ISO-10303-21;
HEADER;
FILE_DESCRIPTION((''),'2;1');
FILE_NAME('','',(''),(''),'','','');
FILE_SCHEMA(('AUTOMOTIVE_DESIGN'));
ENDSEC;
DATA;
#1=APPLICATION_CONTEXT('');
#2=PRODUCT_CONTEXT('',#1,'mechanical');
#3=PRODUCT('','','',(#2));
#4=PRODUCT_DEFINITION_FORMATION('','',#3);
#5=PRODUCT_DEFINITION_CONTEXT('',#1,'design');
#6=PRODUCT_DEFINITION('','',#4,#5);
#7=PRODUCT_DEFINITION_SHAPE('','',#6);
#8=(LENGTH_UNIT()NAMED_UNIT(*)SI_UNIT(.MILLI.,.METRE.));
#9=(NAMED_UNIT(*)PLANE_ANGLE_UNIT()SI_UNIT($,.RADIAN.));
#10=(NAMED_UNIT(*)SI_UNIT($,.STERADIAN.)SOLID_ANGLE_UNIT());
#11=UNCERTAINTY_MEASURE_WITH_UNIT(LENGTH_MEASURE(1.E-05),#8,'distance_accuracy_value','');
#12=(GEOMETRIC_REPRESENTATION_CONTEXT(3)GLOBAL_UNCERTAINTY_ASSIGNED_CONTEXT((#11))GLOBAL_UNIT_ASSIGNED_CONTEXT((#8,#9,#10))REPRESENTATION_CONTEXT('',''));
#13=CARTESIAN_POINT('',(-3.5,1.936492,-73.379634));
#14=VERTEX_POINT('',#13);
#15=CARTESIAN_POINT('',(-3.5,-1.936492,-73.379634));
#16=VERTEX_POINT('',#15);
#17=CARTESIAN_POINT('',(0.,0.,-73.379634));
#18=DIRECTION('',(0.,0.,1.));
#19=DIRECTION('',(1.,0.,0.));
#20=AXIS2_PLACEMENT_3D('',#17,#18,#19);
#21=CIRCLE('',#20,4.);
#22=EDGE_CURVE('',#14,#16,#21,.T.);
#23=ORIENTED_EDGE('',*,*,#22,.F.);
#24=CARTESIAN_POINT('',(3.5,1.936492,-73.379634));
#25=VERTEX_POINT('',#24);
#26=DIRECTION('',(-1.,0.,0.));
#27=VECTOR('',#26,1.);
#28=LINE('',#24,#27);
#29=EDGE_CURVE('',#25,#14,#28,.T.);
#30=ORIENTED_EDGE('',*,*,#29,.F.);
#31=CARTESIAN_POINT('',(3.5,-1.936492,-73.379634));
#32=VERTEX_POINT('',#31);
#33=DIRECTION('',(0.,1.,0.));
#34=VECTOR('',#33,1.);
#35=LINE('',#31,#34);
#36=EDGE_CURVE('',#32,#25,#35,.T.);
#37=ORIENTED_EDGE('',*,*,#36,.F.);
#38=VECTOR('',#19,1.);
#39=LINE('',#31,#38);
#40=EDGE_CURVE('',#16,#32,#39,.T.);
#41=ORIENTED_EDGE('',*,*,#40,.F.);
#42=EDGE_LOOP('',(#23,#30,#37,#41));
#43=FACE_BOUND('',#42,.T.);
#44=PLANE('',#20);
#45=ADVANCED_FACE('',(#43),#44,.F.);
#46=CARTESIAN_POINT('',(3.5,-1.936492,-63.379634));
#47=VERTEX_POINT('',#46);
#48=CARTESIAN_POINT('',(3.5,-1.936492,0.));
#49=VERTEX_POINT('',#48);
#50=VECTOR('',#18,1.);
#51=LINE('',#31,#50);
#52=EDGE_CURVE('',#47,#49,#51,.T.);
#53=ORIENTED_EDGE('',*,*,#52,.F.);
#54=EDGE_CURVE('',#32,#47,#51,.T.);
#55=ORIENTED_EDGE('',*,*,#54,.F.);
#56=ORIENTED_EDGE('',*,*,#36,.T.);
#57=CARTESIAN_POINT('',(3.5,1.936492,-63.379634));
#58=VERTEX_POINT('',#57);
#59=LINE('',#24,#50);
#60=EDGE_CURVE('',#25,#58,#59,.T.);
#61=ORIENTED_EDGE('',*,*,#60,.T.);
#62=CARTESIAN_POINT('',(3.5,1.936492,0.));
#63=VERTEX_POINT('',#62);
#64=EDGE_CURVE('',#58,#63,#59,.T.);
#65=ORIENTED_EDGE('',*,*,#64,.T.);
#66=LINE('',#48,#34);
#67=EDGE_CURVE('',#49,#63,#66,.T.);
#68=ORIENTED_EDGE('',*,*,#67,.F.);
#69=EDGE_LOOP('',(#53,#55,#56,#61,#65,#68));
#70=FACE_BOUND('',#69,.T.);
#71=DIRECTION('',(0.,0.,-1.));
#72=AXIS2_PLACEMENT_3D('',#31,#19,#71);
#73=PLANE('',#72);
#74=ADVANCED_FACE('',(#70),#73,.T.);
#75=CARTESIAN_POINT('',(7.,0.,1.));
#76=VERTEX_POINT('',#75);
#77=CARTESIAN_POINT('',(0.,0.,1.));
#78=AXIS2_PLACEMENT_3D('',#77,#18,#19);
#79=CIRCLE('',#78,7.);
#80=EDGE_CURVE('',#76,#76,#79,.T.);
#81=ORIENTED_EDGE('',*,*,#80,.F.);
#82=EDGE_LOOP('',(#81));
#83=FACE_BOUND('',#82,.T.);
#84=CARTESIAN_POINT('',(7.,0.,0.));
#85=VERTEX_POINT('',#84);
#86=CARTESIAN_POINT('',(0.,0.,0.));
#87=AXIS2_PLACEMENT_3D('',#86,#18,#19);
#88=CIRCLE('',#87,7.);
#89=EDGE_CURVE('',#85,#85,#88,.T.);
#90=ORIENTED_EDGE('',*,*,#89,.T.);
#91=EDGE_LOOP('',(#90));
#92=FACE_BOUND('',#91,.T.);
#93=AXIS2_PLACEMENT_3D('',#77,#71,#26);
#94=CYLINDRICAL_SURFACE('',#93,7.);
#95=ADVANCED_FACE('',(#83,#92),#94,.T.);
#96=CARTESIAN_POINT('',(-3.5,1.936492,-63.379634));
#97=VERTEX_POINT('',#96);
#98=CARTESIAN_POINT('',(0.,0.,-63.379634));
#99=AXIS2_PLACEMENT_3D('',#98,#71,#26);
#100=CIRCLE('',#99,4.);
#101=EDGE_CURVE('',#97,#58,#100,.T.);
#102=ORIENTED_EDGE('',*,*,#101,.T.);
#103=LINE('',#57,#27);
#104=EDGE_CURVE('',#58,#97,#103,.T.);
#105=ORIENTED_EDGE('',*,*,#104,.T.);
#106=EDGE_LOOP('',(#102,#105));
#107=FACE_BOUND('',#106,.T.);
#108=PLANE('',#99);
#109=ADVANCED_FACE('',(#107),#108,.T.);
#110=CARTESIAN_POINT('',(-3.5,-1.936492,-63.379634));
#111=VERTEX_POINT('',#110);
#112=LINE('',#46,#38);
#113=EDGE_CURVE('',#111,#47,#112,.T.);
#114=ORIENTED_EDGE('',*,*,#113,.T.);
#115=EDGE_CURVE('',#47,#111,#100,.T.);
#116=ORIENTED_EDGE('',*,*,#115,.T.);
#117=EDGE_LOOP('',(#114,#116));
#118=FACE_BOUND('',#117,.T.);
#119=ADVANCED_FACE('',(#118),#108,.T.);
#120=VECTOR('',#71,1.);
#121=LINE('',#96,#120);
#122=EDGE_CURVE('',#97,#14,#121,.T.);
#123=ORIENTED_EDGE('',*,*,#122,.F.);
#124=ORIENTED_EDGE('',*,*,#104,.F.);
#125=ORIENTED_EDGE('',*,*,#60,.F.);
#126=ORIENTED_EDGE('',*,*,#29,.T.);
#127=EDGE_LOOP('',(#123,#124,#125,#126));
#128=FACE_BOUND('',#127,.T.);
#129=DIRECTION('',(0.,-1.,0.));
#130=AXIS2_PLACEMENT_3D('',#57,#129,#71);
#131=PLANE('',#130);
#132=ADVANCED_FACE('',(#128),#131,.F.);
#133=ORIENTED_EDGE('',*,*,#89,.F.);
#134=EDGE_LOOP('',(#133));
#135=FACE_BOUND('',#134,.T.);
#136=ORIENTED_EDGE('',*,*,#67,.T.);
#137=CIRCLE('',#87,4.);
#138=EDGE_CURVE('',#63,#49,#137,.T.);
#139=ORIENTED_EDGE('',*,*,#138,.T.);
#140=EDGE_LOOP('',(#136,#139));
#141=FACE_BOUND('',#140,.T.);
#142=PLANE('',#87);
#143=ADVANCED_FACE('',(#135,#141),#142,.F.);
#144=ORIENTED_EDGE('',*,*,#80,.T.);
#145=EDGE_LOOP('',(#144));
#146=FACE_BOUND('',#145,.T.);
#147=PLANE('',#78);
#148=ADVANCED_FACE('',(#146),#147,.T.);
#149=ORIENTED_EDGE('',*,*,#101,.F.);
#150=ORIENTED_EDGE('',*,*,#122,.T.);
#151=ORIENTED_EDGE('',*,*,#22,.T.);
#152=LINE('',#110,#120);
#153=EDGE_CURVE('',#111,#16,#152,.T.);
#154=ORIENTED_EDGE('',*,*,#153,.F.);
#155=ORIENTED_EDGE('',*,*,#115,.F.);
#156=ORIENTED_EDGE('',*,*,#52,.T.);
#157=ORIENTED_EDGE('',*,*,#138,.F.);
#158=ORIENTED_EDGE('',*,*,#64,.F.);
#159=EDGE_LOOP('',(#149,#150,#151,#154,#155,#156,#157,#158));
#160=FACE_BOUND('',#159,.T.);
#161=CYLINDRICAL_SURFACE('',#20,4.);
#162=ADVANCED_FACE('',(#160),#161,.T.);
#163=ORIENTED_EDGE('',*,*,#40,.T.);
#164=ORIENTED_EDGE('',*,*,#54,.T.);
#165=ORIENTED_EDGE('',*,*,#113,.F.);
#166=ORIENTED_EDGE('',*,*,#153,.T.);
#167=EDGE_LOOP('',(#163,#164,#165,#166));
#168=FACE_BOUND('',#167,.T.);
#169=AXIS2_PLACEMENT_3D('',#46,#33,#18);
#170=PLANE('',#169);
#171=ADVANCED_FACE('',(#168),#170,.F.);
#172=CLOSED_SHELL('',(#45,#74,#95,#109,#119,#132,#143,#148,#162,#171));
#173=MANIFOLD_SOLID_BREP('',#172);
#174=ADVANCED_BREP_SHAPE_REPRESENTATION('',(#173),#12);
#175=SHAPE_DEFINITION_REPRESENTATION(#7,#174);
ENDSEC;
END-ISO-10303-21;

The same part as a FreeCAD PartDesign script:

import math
import FreeCAD as App
import Part
import Sketcher
Q = App.Units.Quantity

doc = App.newDocument("Part")
body = doc.addObject("PartDesign::Body", "Body")

# Sketch on XY plane
sketch1 = doc.addObject("Sketcher::SketchObject", "Sketch")
body.addObject(sketch1)
sketch1.AttachmentSupport = (doc.XY_Plane, [""])
sketch1.MapMode = "FlatFace"
sketch1.addGeometry([
    Part.LineSegment(App.Vector(3.5, -1.936492, 0), App.Vector(3.5, 1.936492, 0)),
    Part.ArcOfCircle(Part.Circle(App.Vector(0, 0, 0), App.Vector(0, 0, 1), 4), math.radians(28.955024), math.radians(331.044976)),
], False)
sketch1.addConstraint([
    Sketcher.Constraint("Coincident", 0, 1, 1, 2),
    Sketcher.Constraint("Coincident", 1, 1, 0, 2),
    Sketcher.Constraint("Vertical", 0),
    Sketcher.Constraint("Coincident", 1, 3, -1, 1),
    Sketcher.Constraint("Radius", 1, Q("4 mm")),
    Sketcher.Constraint("DistanceX", -1, 1, 0, 1, Q("3.5 mm")),
])
pad1 = doc.addObject("PartDesign::Pad", "Pad")
body.addObject(pad1)
pad1.Profile = sketch1
pad1.Length = 73.379634
pad1.Reversed = True

# Sketch on XY plane
sketch2 = doc.addObject("Sketcher::SketchObject", "Sketch001")
body.addObject(sketch2)
sketch2.AttachmentSupport = (doc.XY_Plane, [""])
sketch2.MapMode = "FlatFace"
sketch2.addGeometry(Part.Circle(App.Vector(0, 0, 0), App.Vector(0, 0, 1), 7), False)
sketch2.addConstraint([
    Sketcher.Constraint("Coincident", 0, 3, -1, 1),
    Sketcher.Constraint("Diameter", 0, Q("14 mm")),
])
pad2 = doc.addObject("PartDesign::Pad", "Pad001")
body.addObject(pad2)
pad2.Profile = sketch2
pad2.Length = 1

# Sketch on XY plane
sketch3 = doc.addObject("Sketcher::SketchObject", "Sketch002")
body.addObject(sketch3)
sketch3.AttachmentSupport = (doc.XY_Plane, [""])
sketch3.MapMode = "FlatFace"
sketch3.AttachmentOffset = App.Placement(App.Vector(0, 0, -63.379634), App.Rotation())
sketch3.addGeometry([
    Part.LineSegment(App.Vector(3.5, 1.936492, 0), App.Vector(-3.5, 1.936492, 0)),
    Part.ArcOfCircle(Part.Circle(App.Vector(0, 0, 0), App.Vector(0, 0, 1), 4), math.radians(28.955024), math.radians(151.044976)),
    Part.LineSegment(App.Vector(-3.5, -1.936492, 0), App.Vector(3.5, -1.936492, 0)),
    Part.ArcOfCircle(Part.Circle(App.Vector(0, 0, 0), App.Vector(0, 0, 1), 4), math.radians(-151.044976), math.radians(-28.955024)),
], False)
sketch3.addConstraint([
    Sketcher.Constraint("Coincident", 0, 1, 1, 1),
    Sketcher.Constraint("Coincident", 1, 2, 0, 2),
    Sketcher.Constraint("Coincident", 2, 1, 3, 1),
    Sketcher.Constraint("Coincident", 3, 2, 2, 2),
    Sketcher.Constraint("Horizontal", 0),
    Sketcher.Constraint("Horizontal", 2),
    Sketcher.Constraint("Coincident", 1, 3, -1, 1),
    Sketcher.Constraint("Coincident", 3, 3, -1, 1),
    Sketcher.Constraint("Equal", 1, 3),
    Sketcher.Constraint("Vertical", 1, 2, 2, 1),
    Sketcher.Constraint("Radius", 1, Q("4 mm")),
    Sketcher.Constraint("DistanceX", 0, 2, 0, 1, Q("7 mm")),
])
pocket1 = doc.addObject("PartDesign::Pocket", "Pocket")
body.addObject(pocket1)
pocket1.Profile = sketch3
pocket1.Length = 10

doc.recompute()
